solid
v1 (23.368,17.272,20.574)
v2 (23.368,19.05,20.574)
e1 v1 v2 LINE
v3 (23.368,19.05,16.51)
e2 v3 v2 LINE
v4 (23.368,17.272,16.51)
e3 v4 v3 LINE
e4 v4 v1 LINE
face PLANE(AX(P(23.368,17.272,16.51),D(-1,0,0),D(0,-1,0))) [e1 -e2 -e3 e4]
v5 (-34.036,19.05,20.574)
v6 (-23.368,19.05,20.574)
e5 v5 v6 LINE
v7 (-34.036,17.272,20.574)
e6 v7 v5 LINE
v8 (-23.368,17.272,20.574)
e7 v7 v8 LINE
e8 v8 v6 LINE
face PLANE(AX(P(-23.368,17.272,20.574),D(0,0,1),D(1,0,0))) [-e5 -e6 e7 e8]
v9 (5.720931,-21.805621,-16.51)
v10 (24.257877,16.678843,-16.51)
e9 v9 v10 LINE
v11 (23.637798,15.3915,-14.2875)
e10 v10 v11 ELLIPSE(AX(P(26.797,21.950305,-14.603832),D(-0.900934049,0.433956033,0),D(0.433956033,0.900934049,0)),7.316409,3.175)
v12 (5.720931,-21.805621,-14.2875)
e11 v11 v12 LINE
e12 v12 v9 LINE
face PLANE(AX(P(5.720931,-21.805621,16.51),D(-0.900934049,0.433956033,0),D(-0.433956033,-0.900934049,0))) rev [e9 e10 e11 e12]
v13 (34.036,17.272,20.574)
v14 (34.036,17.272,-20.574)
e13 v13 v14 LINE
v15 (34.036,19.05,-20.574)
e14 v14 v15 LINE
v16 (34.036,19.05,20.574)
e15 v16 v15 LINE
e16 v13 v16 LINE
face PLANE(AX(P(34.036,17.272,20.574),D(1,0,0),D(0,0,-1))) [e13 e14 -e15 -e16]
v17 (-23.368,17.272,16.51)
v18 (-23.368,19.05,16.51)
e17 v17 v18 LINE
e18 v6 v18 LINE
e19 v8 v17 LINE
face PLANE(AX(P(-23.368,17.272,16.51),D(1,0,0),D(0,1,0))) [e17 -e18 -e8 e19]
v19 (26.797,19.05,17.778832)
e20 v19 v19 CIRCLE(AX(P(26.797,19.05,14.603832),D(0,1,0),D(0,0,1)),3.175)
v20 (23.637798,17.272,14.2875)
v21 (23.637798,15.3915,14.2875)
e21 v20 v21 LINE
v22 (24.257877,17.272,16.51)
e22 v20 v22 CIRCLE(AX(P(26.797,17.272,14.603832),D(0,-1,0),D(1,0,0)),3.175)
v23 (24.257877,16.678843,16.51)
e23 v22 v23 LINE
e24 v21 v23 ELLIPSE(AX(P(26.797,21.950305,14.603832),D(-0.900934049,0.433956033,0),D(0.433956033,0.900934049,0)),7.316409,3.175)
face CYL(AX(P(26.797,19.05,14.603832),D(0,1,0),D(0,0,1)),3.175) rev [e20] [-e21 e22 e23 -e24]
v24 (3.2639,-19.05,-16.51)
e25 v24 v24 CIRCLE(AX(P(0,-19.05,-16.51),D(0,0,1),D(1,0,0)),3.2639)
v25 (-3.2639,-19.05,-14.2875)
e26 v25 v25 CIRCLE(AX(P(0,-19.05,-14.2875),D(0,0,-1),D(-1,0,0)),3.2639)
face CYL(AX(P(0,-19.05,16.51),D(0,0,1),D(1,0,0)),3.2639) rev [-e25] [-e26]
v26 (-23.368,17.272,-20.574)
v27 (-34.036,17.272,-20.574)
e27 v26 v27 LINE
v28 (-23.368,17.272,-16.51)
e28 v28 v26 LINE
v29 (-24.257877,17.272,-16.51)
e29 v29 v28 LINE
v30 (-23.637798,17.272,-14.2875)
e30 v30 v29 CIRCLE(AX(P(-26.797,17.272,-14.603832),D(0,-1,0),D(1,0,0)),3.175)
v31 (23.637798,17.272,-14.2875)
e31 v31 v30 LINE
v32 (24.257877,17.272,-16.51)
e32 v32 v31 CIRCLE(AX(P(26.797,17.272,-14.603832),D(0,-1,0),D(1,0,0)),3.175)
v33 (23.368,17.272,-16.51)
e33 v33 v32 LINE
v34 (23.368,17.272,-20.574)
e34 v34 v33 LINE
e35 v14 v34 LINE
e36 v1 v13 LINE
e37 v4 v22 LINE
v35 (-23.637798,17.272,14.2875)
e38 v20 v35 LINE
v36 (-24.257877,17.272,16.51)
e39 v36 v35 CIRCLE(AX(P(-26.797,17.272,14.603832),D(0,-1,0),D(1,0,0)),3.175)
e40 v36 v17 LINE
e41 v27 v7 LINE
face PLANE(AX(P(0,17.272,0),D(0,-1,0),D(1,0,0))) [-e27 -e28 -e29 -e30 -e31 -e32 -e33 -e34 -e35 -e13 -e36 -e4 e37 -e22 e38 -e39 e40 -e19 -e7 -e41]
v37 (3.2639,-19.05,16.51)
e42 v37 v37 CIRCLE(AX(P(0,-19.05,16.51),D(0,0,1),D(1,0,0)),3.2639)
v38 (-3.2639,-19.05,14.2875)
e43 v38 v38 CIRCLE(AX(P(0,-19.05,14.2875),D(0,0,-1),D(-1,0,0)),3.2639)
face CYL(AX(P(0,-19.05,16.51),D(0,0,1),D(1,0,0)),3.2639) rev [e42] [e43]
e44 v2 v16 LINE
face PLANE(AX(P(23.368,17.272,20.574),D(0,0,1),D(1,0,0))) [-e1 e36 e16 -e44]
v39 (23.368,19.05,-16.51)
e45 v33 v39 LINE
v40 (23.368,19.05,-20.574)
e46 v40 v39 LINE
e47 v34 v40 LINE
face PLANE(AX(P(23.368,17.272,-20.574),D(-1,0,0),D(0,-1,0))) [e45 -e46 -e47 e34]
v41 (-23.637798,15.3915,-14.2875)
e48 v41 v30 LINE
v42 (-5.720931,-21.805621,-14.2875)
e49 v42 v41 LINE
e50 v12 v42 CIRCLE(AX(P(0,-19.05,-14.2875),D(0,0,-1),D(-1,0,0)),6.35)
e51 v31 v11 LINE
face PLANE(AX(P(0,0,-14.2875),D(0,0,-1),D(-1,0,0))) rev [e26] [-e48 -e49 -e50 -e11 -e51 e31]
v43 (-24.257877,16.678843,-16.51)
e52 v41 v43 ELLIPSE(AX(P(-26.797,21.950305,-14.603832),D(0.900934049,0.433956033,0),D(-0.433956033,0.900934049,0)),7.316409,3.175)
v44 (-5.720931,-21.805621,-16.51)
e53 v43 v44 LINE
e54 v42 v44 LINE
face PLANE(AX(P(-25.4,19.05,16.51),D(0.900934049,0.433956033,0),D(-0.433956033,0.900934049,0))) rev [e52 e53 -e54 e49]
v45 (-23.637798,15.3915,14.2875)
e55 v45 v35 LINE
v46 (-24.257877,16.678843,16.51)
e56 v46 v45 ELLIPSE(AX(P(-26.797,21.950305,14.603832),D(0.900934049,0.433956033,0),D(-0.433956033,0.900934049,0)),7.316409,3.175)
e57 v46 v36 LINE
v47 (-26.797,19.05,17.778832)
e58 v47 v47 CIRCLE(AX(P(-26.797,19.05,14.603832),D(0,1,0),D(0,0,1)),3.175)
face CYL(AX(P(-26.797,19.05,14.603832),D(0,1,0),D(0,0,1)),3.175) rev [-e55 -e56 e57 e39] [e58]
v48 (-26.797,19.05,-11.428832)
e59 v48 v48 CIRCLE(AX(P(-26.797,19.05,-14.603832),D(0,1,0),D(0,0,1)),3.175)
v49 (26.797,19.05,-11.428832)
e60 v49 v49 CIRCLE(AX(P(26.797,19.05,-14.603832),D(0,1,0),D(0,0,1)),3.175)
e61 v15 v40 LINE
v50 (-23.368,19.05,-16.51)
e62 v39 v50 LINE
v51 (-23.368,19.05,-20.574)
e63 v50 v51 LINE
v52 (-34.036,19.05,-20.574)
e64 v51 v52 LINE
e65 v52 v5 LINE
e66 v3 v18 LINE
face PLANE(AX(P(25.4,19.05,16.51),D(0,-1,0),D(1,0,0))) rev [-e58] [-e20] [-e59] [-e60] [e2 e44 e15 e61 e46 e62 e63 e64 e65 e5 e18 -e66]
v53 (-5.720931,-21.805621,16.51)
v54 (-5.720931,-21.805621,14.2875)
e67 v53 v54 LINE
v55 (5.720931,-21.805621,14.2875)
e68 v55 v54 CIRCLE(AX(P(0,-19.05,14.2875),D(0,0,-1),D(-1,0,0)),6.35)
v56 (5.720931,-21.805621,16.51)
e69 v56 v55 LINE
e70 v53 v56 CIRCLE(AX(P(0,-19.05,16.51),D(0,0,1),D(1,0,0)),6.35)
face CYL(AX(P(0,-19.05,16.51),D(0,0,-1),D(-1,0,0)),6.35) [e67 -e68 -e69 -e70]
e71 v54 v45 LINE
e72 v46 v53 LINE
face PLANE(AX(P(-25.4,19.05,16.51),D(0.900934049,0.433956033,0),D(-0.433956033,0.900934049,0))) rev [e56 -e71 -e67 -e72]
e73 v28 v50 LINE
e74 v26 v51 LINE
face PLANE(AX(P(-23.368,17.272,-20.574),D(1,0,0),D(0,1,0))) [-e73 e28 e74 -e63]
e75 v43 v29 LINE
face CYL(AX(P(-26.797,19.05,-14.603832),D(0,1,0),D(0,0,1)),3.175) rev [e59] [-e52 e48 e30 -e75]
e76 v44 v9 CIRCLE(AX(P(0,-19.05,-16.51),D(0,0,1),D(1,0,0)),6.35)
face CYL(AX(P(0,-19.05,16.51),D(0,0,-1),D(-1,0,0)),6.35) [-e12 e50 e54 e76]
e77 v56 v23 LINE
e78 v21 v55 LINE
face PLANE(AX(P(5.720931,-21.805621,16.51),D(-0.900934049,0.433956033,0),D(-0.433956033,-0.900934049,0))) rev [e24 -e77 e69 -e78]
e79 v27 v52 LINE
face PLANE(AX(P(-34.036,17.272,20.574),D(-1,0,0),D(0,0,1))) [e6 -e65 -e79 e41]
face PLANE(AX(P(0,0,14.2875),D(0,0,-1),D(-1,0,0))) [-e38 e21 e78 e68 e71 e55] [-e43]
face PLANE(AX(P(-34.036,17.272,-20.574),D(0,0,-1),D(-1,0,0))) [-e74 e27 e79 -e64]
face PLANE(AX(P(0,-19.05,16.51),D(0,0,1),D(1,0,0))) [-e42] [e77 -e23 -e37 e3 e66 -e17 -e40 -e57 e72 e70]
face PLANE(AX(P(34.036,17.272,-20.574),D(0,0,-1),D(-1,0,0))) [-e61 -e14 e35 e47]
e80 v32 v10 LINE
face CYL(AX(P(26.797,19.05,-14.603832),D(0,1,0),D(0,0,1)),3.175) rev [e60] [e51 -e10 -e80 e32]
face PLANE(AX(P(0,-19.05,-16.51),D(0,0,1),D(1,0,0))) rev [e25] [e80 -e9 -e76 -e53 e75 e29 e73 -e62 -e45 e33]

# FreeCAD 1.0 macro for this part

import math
import FreeCAD as App
import Part
import Sketcher

V = App.Vector
Q = App.Units.Quantity

doc = App.newDocument("Part")
body = doc.addObject("PartDesign::Body", "Body")

sketch1 = doc.addObject("Sketcher::SketchObject", "Sketch")
body.addObject(sketch1)
sketch1.AttachmentSupport = (doc.XY_Plane, [""])
sketch1.MapMode = "FlatFace"
sketch1.addGeometry([
    Part.LineSegment(V(25.4, 19.05, 0), V(-25.4, 19.05, 0)),
    Part.LineSegment(V(-25.4, 19.05, 0), V(-5.720931, -21.805621, 0)),
    Part.ArcOfCircle(Part.Circle(V(0, -19.05, 0), V(0, 0, 1), 6.35), math.radians(-154.281117), math.radians(-25.718883)),
    Part.LineSegment(V(5.720931, -21.805621, 0), V(25.4, 19.05, 0)),
], False)
sketch1.addConstraint([
    Sketcher.Constraint("Coincident", 0, 2, 1, 1),
    Sketcher.Constraint("Tangent", 1, 2, 2, 1),
    Sketcher.Constraint("Tangent", 2, 2, 3, 1),
    Sketcher.Constraint("Coincident", 3, 2, 0, 1),
    Sketcher.Constraint("Horizontal", 0),
    Sketcher.Constraint("Symmetric", 1, 2, 2, 2, -2),
    Sketcher.Constraint("DistanceX", 0, 2, 0, 1, Q("2 in")),
    Sketcher.Constraint("Radius", 2, Q("0.25 in")),
    Sketcher.Constraint("DistanceY", 2, 3, 0, 2, Q("1.5 in")),
    Sketcher.Constraint("DistanceY", 2, 3, -1, 1, Q("0.75 in")),
])
pad1 = doc.addObject("PartDesign::Pad", "Pad")
body.addObject(pad1)
pad1.Profile = sketch1
pad1.Length = Q("1.3 in")
pad1.Midplane = True

sketch2 = doc.addObject("Sketcher::SketchObject", "Sketch001")
body.addObject(sketch2)
sketch2.AttachmentSupport = (doc.XZ_Plane, [""])
sketch2.MapMode = "FlatFace"
sketch2.AttachmentOffset = App.Placement(V(0, 0, -0.75 * 25.4), App.Rotation())
sketch2.addGeometry([
    Part.LineSegment(V(-34.036, -20.574, 0), V(-34.036, 20.574, 0)),
    Part.LineSegment(V(-34.036, 20.574, 0), V(-23.368, 20.574, 0)),
    Part.LineSegment(V(-23.368, 20.574, 0), V(-23.368, 16.51, 0)),
    Part.LineSegment(V(-23.368, 16.51, 0), V(23.368, 16.51, 0)),
    Part.LineSegment(V(23.368, 16.51, 0), V(23.368, 20.574, 0)),
    Part.LineSegment(V(23.368, 20.574, 0), V(34.036, 20.574, 0)),
    Part.LineSegment(V(34.036, 20.574, 0), V(34.036, -20.574, 0)),
    Part.LineSegment(V(34.036, -20.574, 0), V(23.368, -20.574, 0)),
    Part.LineSegment(V(23.368, -20.574, 0), V(23.368, -16.51, 0)),
    Part.LineSegment(V(23.368, -16.51, 0), V(-23.368, -16.51, 0)),
    Part.LineSegment(V(-23.368, -16.51, 0), V(-23.368, -20.574, 0)),
    Part.LineSegment(V(-23.368, -20.574, 0), V(-34.036, -20.574, 0)),
], False)
sketch2.addConstraint([
    Sketcher.Constraint("Coincident", 0, 2, 1, 1),
    Sketcher.Constraint("Coincident", 1, 2, 2, 1),
    Sketcher.Constraint("Coincident", 2, 2, 3, 1),
    Sketcher.Constraint("Coincident", 3, 2, 4, 1),
    Sketcher.Constraint("Coincident", 4, 2, 5, 1),
    Sketcher.Constraint("Coincident", 5, 2, 6, 1),
    Sketcher.Constraint("Coincident", 6, 2, 7, 1),
    Sketcher.Constraint("Coincident", 7, 2, 8, 1),
    Sketcher.Constraint("Coincident", 8, 2, 9, 1),
    Sketcher.Constraint("Coincident", 9, 2, 10, 1),
    Sketcher.Constraint("Coincident", 10, 2, 11, 1),
    Sketcher.Constraint("Coincident", 11, 2, 0, 1),
    Sketcher.Constraint("Vertical", 0),
    Sketcher.Constraint("Horizontal", 1),
    Sketcher.Constraint("Vertical", 2),
    Sketcher.Constraint("Horizontal", 3),
    Sketcher.Constraint("Vertical", 4),
    Sketcher.Constraint("Horizontal", 5),
    Sketcher.Constraint("Vertical", 6),
    Sketcher.Constraint("Horizontal", 7),
    Sketcher.Constraint("Vertical", 8),
    Sketcher.Constraint("Horizontal", 9),
    Sketcher.Constraint("Vertical", 10),
    Sketcher.Constraint("Horizontal", 11),
    Sketcher.Constraint("Symmetric", 0, 2, 6, 2, -1, 1),
    Sketcher.Constraint("Symmetric", 2, 2, 8, 2, -1, 1),
    Sketcher.Constraint("Symmetric", 4, 2, 10, 2, -1, 1),
    Sketcher.Constraint("Symmetric", 1, 2, 4, 2, -2),
    Sketcher.Constraint("DistanceX", 1, 1, 1, 2, Q("0.42 in")),
    Sketcher.Constraint("DistanceX", 3, 1, 3, 2, Q("1.84 in")),
    Sketcher.Constraint("DistanceY", 0, 1, 0, 2, Q("1.62 in")),
    Sketcher.Constraint("DistanceY", 2, 2, 2, 1, Q("0.16 in")),
])
pad2 = doc.addObject("PartDesign::Pad", "Pad001")
body.addObject(pad2)
pad2.Profile = sketch2
pad2.Length = Q("0.07 in")

sketch3 = doc.addObject("Sketcher::SketchObject", "Sketch002")
body.addObject(sketch3)
sketch3.AttachmentSupport = (doc.XZ_Plane, [""])
sketch3.MapMode = "FlatFace"
sketch3.AttachmentOffset = App.Placement(V(0, 0, -0.75 * 25.4), App.Rotation())
sketch3.addGeometry([
    Part.Circle(V(-26.797, -14.603832, 0), V(0, 0, 1), 3.175),
    Part.Circle(V(-26.797, 14.603832, 0), V(0, 0, 1), 3.175),
    Part.Circle(V(26.797, 14.603832, 0), V(0, 0, 1), 3.175),
    Part.Circle(V(26.797, -14.603832, 0), V(0, 0, 1), 3.175),
], False)
sketch3.addConstraint([
    Sketcher.Constraint("Equal", 0, 1),
    Sketcher.Constraint("Equal", 1, 2),
    Sketcher.Constraint("Equal", 2, 3),
    Sketcher.Constraint("Symmetric", 0, 3, 2, 3, -1, 1),
    Sketcher.Constraint("Symmetric", 1, 3, 3, 3, -1, 1),
    Sketcher.Constraint("Symmetric", 1, 3, 2, 3, -2),
    Sketcher.Constraint("Diameter", 0, Q("0.25 in")),
    Sketcher.Constraint("DistanceX", 1, 3, 2, 3, Q("2.11 in")),
    Sketcher.Constraint("DistanceY", 0, 3, -1, 1, 14.603832),
])
doc.recompute()
hole = doc.addObject("PartDesign::Hole", "Hole")
body.addObject(hole)
hole.Profile = sketch3
hole.ThreadType = "None"
hole.Diameter = Q("0.25 in")
hole.DepthType = "ThroughAll"
hole.Reversed = True

sketch4 = doc.addObject("Sketcher::SketchObject", "Sketch003")
body.addObject(sketch4)
sketch4.AttachmentSupport = (doc.XY_Plane, [""])
sketch4.MapMode = "FlatFace"
sketch4.addGeometry([
    Part.LineSegment(V(-26.9875, 17.272, 0), V(-26.9875, -27.178, 0)),
    Part.LineSegment(V(-26.9875, -27.178, 0), V(26.9875, -27.178, 0)),
    Part.LineSegment(V(26.9875, -27.178, 0), V(26.9875, 17.272, 0)),
    Part.LineSegment(V(26.9875, 17.272, 0), V(-26.9875, 17.272, 0)),
], False)
sketch4.addConstraint([
    Sketcher.Constraint("Coincident", 0, 2, 1, 1),
    Sketcher.Constraint("Coincident", 1, 2, 2, 1),
    Sketcher.Constraint("Coincident", 2, 2, 3, 1),
    Sketcher.Constraint("Coincident", 3, 2, 0, 1),
    Sketcher.Constraint("Vertical", 0),
    Sketcher.Constraint("Horizontal", 1),
    Sketcher.Constraint("Vertical", 2),
    Sketcher.Constraint("Horizontal", 3),
    Sketcher.Constraint("DistanceY", 0, 2, 0, 1, Q("1.75 in")),
    Sketcher.Constraint("DistanceX", 1, 1, 1, 2, Q("2.125 in")),
    Sketcher.Constraint("DistanceY", 0, 2, -1, 1, Q("1.07 in")),
    Sketcher.Constraint("DistanceX", 0, 2, -1, 1, Q("1.0625 in")),
])
pocket1 = doc.addObject("PartDesign::Pocket", "Pocket")
body.addObject(pocket1)
pocket1.Profile = sketch4
pocket1.Length = Q("1.125 in")
pocket1.Midplane = True

sketch5 = doc.addObject("Sketcher::SketchObject", "Sketch004")
body.addObject(sketch5)
sketch5.AttachmentSupport = (doc.XY_Plane, [""])
sketch5.MapMode = "FlatFace"
sketch5.AttachmentOffset = App.Placement(V(0, 0, 0.65 * 25.4), App.Rotation())
sketch5.addGeometry(Part.Circle(V(0, -19.05, 0), V(0, 0, 1), 3.2639), False)
sketch5.addConstraint([
    Sketcher.Constraint("PointOnObject", 0, 3, -2),
    Sketcher.Constraint("Diameter", 0, Q("0.257 in")),
    Sketcher.Constraint("DistanceY", 0, 3, -1, 1, Q("0.75 in")),
])
doc.recompute()
hole2 = doc.addObject("PartDesign::Hole", "Hole001")
body.addObject(hole2)
hole2.Profile = sketch5
hole2.ThreadType = "None"
hole2.Diameter = Q("0.257 in")
hole2.DepthType = "ThroughAll"

doc.recompute()
